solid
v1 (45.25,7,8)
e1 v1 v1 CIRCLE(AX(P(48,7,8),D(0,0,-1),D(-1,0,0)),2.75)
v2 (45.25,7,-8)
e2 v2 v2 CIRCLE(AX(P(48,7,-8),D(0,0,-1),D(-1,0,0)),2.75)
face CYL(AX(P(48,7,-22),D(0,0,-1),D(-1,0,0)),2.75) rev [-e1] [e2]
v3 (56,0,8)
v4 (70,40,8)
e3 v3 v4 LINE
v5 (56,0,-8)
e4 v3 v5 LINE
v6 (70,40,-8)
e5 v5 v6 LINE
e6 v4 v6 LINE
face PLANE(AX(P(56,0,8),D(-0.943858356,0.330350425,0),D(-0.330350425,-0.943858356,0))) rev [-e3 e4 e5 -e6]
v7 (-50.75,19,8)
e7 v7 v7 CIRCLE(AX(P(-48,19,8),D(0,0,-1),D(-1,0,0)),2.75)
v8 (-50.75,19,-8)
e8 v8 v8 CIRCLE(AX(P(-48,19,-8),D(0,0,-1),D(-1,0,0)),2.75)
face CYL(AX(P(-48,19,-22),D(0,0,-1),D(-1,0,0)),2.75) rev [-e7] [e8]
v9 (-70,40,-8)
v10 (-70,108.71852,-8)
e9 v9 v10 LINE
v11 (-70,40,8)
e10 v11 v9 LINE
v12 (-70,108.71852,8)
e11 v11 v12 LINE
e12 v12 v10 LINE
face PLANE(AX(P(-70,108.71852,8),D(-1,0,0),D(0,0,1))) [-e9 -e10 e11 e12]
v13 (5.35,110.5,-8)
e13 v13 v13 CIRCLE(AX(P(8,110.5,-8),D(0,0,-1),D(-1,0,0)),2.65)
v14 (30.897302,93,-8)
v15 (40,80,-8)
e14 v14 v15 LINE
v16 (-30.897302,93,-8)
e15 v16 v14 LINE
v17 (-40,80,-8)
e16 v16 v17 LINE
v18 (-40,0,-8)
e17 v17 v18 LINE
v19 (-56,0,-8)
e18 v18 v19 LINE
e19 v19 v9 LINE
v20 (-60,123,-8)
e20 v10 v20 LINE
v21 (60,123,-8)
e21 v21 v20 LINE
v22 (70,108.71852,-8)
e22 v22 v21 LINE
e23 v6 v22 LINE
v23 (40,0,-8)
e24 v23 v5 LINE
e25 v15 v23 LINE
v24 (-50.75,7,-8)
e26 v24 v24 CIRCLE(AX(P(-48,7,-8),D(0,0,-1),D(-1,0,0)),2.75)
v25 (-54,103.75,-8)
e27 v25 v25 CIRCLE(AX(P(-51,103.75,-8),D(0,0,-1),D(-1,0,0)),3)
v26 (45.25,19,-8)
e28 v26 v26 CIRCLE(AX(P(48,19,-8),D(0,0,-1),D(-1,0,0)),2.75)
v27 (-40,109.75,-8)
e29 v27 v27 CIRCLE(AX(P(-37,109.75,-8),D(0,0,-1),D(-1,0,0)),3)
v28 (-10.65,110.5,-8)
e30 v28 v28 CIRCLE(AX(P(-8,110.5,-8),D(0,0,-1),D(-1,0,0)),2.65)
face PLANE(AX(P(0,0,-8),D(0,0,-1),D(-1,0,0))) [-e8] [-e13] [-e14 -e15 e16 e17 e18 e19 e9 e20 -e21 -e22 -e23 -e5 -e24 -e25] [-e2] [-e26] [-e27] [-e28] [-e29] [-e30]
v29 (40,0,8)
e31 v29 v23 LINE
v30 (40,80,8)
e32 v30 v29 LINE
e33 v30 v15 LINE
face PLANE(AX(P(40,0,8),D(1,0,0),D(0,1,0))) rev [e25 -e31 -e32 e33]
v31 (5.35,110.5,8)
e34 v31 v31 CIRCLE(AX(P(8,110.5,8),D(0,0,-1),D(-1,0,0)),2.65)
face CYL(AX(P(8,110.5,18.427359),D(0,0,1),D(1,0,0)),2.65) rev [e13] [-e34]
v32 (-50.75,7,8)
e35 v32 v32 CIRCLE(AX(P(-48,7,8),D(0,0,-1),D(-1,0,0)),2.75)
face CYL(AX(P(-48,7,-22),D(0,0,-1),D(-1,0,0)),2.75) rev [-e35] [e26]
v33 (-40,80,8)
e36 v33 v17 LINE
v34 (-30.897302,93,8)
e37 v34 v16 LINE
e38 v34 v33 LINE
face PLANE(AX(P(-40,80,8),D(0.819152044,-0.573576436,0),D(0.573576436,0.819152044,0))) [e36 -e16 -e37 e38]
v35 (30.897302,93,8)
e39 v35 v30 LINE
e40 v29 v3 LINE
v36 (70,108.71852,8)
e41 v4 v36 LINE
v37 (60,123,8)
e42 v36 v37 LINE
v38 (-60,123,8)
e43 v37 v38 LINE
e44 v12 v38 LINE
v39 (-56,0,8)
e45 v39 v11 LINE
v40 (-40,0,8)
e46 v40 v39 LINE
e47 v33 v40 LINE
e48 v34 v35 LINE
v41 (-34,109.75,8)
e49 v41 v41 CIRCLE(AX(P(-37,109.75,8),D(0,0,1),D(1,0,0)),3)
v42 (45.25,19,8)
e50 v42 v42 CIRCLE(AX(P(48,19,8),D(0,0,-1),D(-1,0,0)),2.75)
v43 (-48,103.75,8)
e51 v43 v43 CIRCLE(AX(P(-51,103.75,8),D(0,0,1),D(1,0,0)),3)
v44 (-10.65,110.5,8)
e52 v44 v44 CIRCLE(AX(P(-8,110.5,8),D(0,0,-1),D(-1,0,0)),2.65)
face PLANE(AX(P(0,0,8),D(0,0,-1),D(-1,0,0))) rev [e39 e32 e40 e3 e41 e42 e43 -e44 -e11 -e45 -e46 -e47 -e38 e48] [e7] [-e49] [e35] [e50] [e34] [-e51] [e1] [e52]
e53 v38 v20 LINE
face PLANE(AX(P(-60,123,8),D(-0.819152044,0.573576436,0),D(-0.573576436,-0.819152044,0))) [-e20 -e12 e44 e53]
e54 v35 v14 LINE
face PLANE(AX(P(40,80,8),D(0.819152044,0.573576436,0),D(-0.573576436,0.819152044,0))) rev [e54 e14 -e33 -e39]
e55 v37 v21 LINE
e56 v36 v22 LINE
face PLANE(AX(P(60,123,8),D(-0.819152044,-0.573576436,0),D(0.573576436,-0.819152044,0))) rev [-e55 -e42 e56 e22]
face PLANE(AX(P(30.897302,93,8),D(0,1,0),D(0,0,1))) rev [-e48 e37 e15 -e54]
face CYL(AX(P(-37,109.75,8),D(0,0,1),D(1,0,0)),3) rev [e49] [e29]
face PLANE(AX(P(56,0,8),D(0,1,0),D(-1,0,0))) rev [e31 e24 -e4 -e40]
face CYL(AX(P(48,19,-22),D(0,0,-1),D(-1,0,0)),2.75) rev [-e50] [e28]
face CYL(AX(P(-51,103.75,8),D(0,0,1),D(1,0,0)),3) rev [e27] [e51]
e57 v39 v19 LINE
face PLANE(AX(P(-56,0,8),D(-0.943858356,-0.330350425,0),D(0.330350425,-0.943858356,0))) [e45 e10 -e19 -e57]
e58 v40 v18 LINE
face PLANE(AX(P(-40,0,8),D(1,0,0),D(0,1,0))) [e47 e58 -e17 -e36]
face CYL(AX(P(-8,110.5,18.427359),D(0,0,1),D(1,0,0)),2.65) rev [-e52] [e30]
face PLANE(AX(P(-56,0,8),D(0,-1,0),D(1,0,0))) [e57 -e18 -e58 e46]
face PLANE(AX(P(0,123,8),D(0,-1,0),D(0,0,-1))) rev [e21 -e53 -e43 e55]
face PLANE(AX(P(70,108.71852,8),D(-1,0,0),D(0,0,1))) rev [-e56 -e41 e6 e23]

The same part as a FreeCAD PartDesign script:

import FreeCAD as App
import Part
import Sketcher
Q = App.Units.Quantity


def add_polygon(sketch, points):
    """Adds a closed chain of lines whose ends are joined by coincident constraints."""
    first, n = sketch.GeometryCount, len(points)
    for a, b in zip(points, points[1:] + points[:1]):
        sketch.addGeometry(Part.LineSegment(App.Vector(*a, 0), App.Vector(*b, 0)), False)
    for i in range(n):
        sketch.addConstraint(Sketcher.Constraint("Coincident", first + i, 2, first + (i + 1) % n, 1))

doc = App.newDocument("Part")
body = doc.addObject("PartDesign::Body", "Body")

sketch1 = doc.addObject("Sketcher::SketchObject", "Sketch")
body.addObject(sketch1)
sketch1.AttachmentSupport = (doc.XY_Plane, [""])
sketch1.MapMode = "FlatFace"
add_polygon(sketch1, [(0, 123), (0, 93), (30.897302, 93), (40, 80), (40, 0), (56, 0), (70, 40), (70, 108.71852), (60, 123)])
sketch1.addConstraint([
    Sketcher.Constraint("Vertical", 0),
    Sketcher.Constraint("Horizontal", 1),
    Sketcher.Constraint("Vertical", 3),
    Sketcher.Constraint("Horizontal", 4),
    Sketcher.Constraint("Vertical", 6),
    Sketcher.Constraint("Horizontal", 8),
    Sketcher.Constraint("PointOnObject", 0, 2, -2),
    Sketcher.Constraint("PointOnObject", 3, 2, -1),
    Sketcher.Constraint("Parallel", 2, 7),
    Sketcher.Constraint("DistanceX", 4, 1, 4, 2, 16.0),
    Sketcher.Constraint("DistanceX", 8, 2, 8, 1, 60.0),
    Sketcher.Constraint("DistanceY", 0, 2, 0, 1, 30.0),
    Sketcher.Constraint("DistanceY", 3, 2, 3, 1, 80.0),
    Sketcher.Constraint("Angle", 2, Q("-55 deg")),
    Sketcher.Constraint("DistanceY", -1, 1, 0, 2, 93.0),
    Sketcher.Constraint("DistanceX", -1, 1, 2, 2, 40.0),
    Sketcher.Constraint("DistanceX", -1, 1, 5, 2, 70.0),
    Sketcher.Constraint("DistanceY", -1, 1, 5, 2, 40.0),
])
pad1 = doc.addObject("PartDesign::Pad", "Pad")
body.addObject(pad1)
pad1.Profile = sketch1
pad1.Length = 16
pad1.Midplane = True
doc.recompute()

mirrored = doc.addObject("PartDesign::Mirrored", "Mirrored")
body.addObject(mirrored)
mirrored.Originals = [pad1]
mirrored.MirrorPlane = (doc.YZ_Plane, [""])
body.Tip = mirrored

sketch2 = doc.addObject("Sketcher::SketchObject", "Sketch001")
body.addObject(sketch2)
sketch2.AttachmentSupport = (doc.XY_Plane, [""])
sketch2.MapMode = "FlatFace"
sketch2.AttachmentOffset = App.Placement(App.Vector(0, 0, 18.427359), App.Rotation())
sketch2.addGeometry([
    Part.Circle(App.Vector(-8, 110.5, 0), App.Vector(0, 0, 1), 2.65),
    Part.Circle(App.Vector(8, 110.5, 0), App.Vector(0, 0, 1), 2.65),
], False)
sketch2.addConstraint([
    Sketcher.Constraint("Equal", 0, 1),
    Sketcher.Constraint("Symmetric", 0, 3, 1, 3, -2),
    Sketcher.Constraint("Diameter", 0, 5.3),
    Sketcher.Constraint("DistanceX", 0, 3, -1, 1, 8.0),
    Sketcher.Constraint("DistanceY", -1, 1, 0, 3, 110.5),
])
doc.recompute()
hole = doc.addObject("PartDesign::Hole", "Hole")
body.addObject(hole)
hole.Profile = sketch2
hole.ThreadType = "None"
hole.Diameter = 5.3
hole.DepthType = "Dimension"
hole.Depth = 60
hole.DrillPoint = "Angled"
hole.DrillPointAngle = 118
hole.HoleCutType = "Counterbore"
hole.HoleCutDiameter = 10
hole.HoleCutDepth = 2

sketch3 = doc.addObject("Sketcher::SketchObject", "Sketch002")
body.addObject(sketch3)
sketch3.AttachmentSupport = (doc.YZ_Plane, [""])
sketch3.MapMode = "FlatFace"
sketch3.AttachmentOffset = App.Placement(App.Vector(0, 0, -48), App.Rotation())
add_polygon(sketch3, [(7, 23.652367), (7, -22), (12, -22), (12, -17), (9.75, -17), (9.75, 22)])
sketch3.addGeometry(Part.LineSegment(App.Vector(7, -22, 0), App.Vector(7, 23.652367, 0)), True)
sketch3.addConstraint([
    Sketcher.Constraint("Vertical", 0),
    Sketcher.Constraint("Horizontal", 1),
    Sketcher.Constraint("Vertical", 2),
    Sketcher.Constraint("Horizontal", 3),
    Sketcher.Constraint("Vertical", 4),
    Sketcher.Constraint("Vertical", 6),
    Sketcher.Constraint("Coincident", 6, 1, 0, 2),
    Sketcher.Constraint("Equal", 1, 2),
    Sketcher.Constraint("Equal", 0, 6),
    Sketcher.Constraint("DistanceX", 1, 1, 1, 2, 5.0),
    Sketcher.Constraint("DistanceY", 4, 1, 4, 2, 39.0),
    Sketcher.Constraint("Angle", 5, Q("149 deg")),
    Sketcher.Constraint("DistanceX", -1, 1, 0, 2, 7.0),
    Sketcher.Constraint("DistanceY", 0, 2, -1, 1, 22.0),
    Sketcher.Constraint("DistanceX", 3, 2, 3, 1, 2.25),
])
groove = doc.addObject("PartDesign::Groove", "Groove")
body.addObject(groove)
groove.Profile = sketch3
groove.ReferenceAxis = (sketch3, ["Axis0"])
groove.Angle = 360
doc.recompute()

linearpattern = doc.addObject("PartDesign::LinearPattern", "LinearPattern")
body.addObject(linearpattern)
linearpattern.Originals = [groove]
linearpattern.Direction = (doc.Y_Axis, [""])
linearpattern.Mode = "offset"
linearpattern.Offset = 12
linearpattern.Occurrences = 2
body.Tip = linearpattern
doc.recompute()

mirrored2 = doc.addObject("PartDesign::Mirrored", "Mirrored001")
body.addObject(mirrored2)
mirrored2.Originals = [groove]
mirrored2.MirrorPlane = (doc.YZ_Plane, [""])
body.Tip = mirrored2

sketch4 = doc.addObject("Sketcher::SketchObject", "Sketch003")
body.addObject(sketch4)
sketch4.AttachmentSupport = (doc.YZ_Plane, [""])
sketch4.MapMode = "FlatFace"
sketch4.AttachmentOffset = App.Placement(App.Vector(0, 0, 48), App.Rotation())
add_polygon(sketch4, [(19, -22), (19, 23.652367), (21.75, 22), (21.75, -17), (24, -17), (24, -22)])
sketch4.addGeometry(Part.LineSegment(App.Vector(19, 23.652367, 0), App.Vector(19, -22, 0)), True)
sketch4.addConstraint([
    Sketcher.Constraint("Vertical", 0),
    Sketcher.Constraint("Vertical", 2),
    Sketcher.Constraint("Horizontal", 3),
    Sketcher.Constraint("Vertical", 4),
    Sketcher.Constraint("Horizontal", 5),
    Sketcher.Constraint("Vertical", 6),
    Sketcher.Constraint("Coincident", 6, 1, 0, 2),
    Sketcher.Constraint("Horizontal", 4, 2, 6, 2),
    Sketcher.Constraint("Equal", 5, 4),
    Sketcher.Constraint("DistanceX", 5, 2, 5, 1, 5.0),
    Sketcher.Constraint("DistanceY", 2, 2, 2, 1, 39.0),
    Sketcher.Constraint("Angle", 1, Q("-31 deg")),
    Sketcher.Constraint("DistanceX", -1, 1, 0, 2, 19.0),
    Sketcher.Constraint("DistanceY", -1, 1, 1, 2, 22.0),
    Sketcher.Constraint("DistanceX", 3, 1, 3, 2, 2.25),
])
groove2 = doc.addObject("PartDesign::Groove", "Groove001")
body.addObject(groove2)
groove2.Profile = sketch4
groove2.ReferenceAxis = (sketch4, ["Axis0"])
groove2.Angle = 360

sketch5 = doc.addObject("Sketcher::SketchObject", "Sketch004")
body.addObject(sketch5)
sketch5.AttachmentSupport = (doc.XY_Plane, [""])
sketch5.MapMode = "FlatFace"
sketch5.AttachmentOffset = App.Placement(App.Vector(0, 0, 8), App.Rotation())
sketch5.addGeometry([
    Part.Circle(App.Vector(-37, 109.75, 0), App.Vector(0, 0, 1), 3),
    Part.Circle(App.Vector(-51, 103.75, 0), App.Vector(0, 0, 1), 3),
], False)
sketch5.addConstraint([
    Sketcher.Constraint("Equal", 0, 1),
    Sketcher.Constraint("Diameter", 0, 6.0),
    Sketcher.Constraint("DistanceX", 0, 3, -1, 1, 37.0),
    Sketcher.Constraint("DistanceX", 1, 3, -1, 1, 51.0),
    Sketcher.Constraint("DistanceY", 1, 3, 0, 3, 6.0),
    Sketcher.Constraint("DistanceY", -1, 1, 0, 3, 109.75),
])
doc.recompute()
hole2 = doc.addObject("PartDesign::Hole", "Hole001")
body.addObject(hole2)
hole2.Profile = sketch5
hole2.ThreadType = "None"
hole2.Diameter = 6
hole2.DepthType = "Dimension"
hole2.Depth = 32
hole2.DrillPoint = "Angled"
hole2.DrillPointAngle = 118

doc.recompute()
